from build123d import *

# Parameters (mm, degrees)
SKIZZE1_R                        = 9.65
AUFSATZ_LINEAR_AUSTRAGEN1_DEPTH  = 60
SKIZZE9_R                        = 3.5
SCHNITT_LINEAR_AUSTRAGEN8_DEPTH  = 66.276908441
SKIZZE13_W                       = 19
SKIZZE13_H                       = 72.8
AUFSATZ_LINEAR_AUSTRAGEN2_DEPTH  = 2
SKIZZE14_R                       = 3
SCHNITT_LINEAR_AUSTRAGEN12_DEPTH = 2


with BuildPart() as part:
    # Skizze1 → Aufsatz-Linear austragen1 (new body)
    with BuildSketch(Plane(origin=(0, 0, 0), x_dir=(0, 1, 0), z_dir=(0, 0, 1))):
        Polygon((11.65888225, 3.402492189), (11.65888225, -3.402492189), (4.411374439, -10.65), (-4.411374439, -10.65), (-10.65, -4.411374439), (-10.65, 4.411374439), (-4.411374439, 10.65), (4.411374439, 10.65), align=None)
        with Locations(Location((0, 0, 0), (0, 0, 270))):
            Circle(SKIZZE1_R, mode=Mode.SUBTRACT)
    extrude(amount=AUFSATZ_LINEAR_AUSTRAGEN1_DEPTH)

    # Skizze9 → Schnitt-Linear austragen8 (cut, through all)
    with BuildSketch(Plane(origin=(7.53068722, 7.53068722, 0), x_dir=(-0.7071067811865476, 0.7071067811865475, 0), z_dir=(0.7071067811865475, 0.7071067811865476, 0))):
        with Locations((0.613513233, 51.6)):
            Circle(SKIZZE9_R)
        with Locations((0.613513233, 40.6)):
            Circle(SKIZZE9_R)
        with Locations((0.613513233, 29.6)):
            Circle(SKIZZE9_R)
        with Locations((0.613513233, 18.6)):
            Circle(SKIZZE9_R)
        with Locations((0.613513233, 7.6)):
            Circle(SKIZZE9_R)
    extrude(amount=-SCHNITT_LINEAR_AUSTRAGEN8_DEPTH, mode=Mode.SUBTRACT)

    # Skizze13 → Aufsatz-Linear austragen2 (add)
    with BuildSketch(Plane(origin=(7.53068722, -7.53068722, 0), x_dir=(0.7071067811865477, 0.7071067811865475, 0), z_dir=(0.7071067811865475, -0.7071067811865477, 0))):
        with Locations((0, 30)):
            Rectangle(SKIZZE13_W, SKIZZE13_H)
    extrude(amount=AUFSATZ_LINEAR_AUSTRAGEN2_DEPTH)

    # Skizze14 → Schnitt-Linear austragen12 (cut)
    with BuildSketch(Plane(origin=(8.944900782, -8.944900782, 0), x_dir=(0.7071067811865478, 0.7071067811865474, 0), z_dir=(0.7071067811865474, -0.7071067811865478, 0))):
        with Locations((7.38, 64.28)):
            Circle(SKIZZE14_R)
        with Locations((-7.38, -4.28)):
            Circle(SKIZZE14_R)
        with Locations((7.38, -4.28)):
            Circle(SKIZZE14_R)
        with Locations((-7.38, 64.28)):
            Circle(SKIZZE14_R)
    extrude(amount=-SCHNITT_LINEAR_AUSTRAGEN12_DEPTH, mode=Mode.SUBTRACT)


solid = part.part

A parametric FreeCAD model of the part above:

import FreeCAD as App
import Part
import Sketcher
from FreeCAD import Vector
Q = App.Units.Quantity

doc = App.newDocument("Part")
params = doc.addObject("Spreadsheet::Sheet", "Params")
for row, (alias, value) in enumerate([
    ("sketch1_diameter", "19.3 mm"),
    ("pad1_length", "60 mm"),
    ("sketch2_diameter", "7 mm"),
    ("sketch3_width", "19 mm"),
    ("sketch3_height", "72.8 mm"),
    ("pad2_length", "2 mm"),
    ("sketch4_diameter", "6 mm"),
    ("pocket2_length", "2 mm"),
], start=1):
    params.set(f"A{row}", alias)
    params.set(f"B{row}", "=" + value)
    params.setAlias(f"B{row}", alias)

body = doc.addObject("PartDesign::Body", "Body")

# Sketch on XY plane
sketch1 = doc.addObject("Sketcher::SketchObject", "Sketch")
body.addObject(sketch1)
sketch1.AttachmentSupport = (doc.XY_Plane, [""])
sketch1.MapMode = "FlatFace"
sketch1.addGeometry([
    Part.LineSegment(Vector(3.402492, 11.658882, 0), Vector(-3.402492, 11.658882, 0)),  # 0
    Part.LineSegment(Vector(-3.402492, 11.658882, 0), Vector(-10.65, 4.411374, 0)),  # 1
    Part.LineSegment(Vector(-10.65, 4.411374, 0), Vector(-10.65, -4.411374, 0)),  # 2
    Part.LineSegment(Vector(-10.65, -4.411374, 0), Vector(-4.411374, -10.65, 0)),  # 3
    Part.LineSegment(Vector(-4.411374, -10.65, 0), Vector(4.411374, -10.65, 0)),  # 4
    Part.LineSegment(Vector(4.411374, -10.65, 0), Vector(10.65, -4.411374, 0)),  # 5
    Part.LineSegment(Vector(10.65, -4.411374, 0), Vector(10.65, 4.411374, 0)),  # 6
    Part.LineSegment(Vector(10.65, 4.411374, 0), Vector(3.402492, 11.658882, 0)),  # 7
    Part.Circle(Vector(0, 0, 0), Vector(0, 0, 1), 9.65),  # 8
], False)
sketch1.addConstraint([
    Sketcher.Constraint("Coincident", 0, 2, 1, 1),
    Sketcher.Constraint("Coincident", 1, 2, 2, 1),
    Sketcher.Constraint("Coincident", 2, 2, 3, 1),
    Sketcher.Constraint("Coincident", 3, 2, 4, 1),
    Sketcher.Constraint("Coincident", 4, 2, 5, 1),
    Sketcher.Constraint("Coincident", 5, 2, 6, 1),
    Sketcher.Constraint("Coincident", 6, 2, 7, 1),
    Sketcher.Constraint("Coincident", 7, 2, 0, 1),
    Sketcher.Constraint("Horizontal", 0),
    Sketcher.Constraint("Vertical", 2),
    Sketcher.Constraint("Horizontal", 4),
    Sketcher.Constraint("Vertical", 6),
    Sketcher.Constraint("Coincident", 8, 3, -1, 1),
    Sketcher.Constraint("Symmetric", 1, 2, 5, 2, -1, 1),
    Sketcher.Constraint("Perpendicular", 1, 3),
    Sketcher.Constraint("Perpendicular", 3, 5),
    Sketcher.Constraint("Perpendicular", 5, 7),
    Sketcher.Constraint("Horizontal", 2, 2, 5, 2),
    Sketcher.Constraint("Horizontal", 1, 2, 6, 2),
    Sketcher.Constraint("Equal", 4, 2),
    Sketcher.Constraint("Equal", 3, 5),
    Sketcher.Constraint("Diameter", 8, Q("19.3 mm")),
    Sketcher.Constraint("DistanceX", 2, 2, 5, 2, Q("21.3 mm")),
    Sketcher.Constraint("DistanceX", 4, 1, 4, 2, Q("8.822749 mm")),
    Sketcher.Constraint("DistanceX", 0, 2, 0, 1, Q("6.804984 mm")),
])
sketch1.setExpression("Constraints[21]", "Params.sketch1_diameter")
pad1 = doc.addObject("PartDesign::Pad", "Pad")
body.addObject(pad1)
pad1.Profile = sketch1
pad1.setExpression("Length", "Params.pad1_length")

# Sketch on an angled plane
sketch2 = doc.addObject("Sketcher::SketchObject", "Sketch001")
body.addObject(sketch2)
sketch2.Placement = App.Placement(Vector(7.530687, 7.530687, 0), App.Rotation(Vector(-0.707106781, 0.707106781, 0), Vector(0, 0, 0.999999999), Vector(0.707106781, 0.707106781, 0), "ZXY"))
sketch2.addGeometry([
    Part.Circle(Vector(0.613513, 51.6, 0), Vector(0, 0, 1), 3.5),  # 0
    Part.Circle(Vector(0.613513, 40.6, 0), Vector(0, 0, 1), 3.5),  # 1
    Part.Circle(Vector(0.613513, 29.6, 0), Vector(0, 0, 1), 3.5),  # 2
    Part.Circle(Vector(0.613513, 18.6, 0), Vector(0, 0, 1), 3.5),  # 3
    Part.Circle(Vector(0.613513, 7.6, 0), Vector(0, 0, 1), 3.5),  # 4
], False)
sketch2.addConstraint([
    Sketcher.Constraint("Equal", 0, 1),
    Sketcher.Constraint("Equal", 1, 2),
    Sketcher.Constraint("Equal", 2, 3),
    Sketcher.Constraint("Equal", 3, 4),
    Sketcher.Constraint("Vertical", 0, 3, 1, 3),
    Sketcher.Constraint("Vertical", 1, 3, 2, 3),
    Sketcher.Constraint("Vertical", 2, 3, 3, 3),
    Sketcher.Constraint("Vertical", 3, 3, 4, 3),
    Sketcher.Constraint("Diameter", 0, Q("7 mm")),
    Sketcher.Constraint("DistanceY", 1, 3, 0, 3, Q("11 mm")),
    Sketcher.Constraint("DistanceY", 2, 3, 1, 3, Q("11 mm")),
    Sketcher.Constraint("DistanceY", 3, 3, 2, 3, Q("11 mm")),
    Sketcher.Constraint("DistanceY", 4, 3, 3, 3, Q("11 mm")),
    Sketcher.Constraint("DistanceY", -1, 1, 0, 3, Q("51.6 mm")),
    Sketcher.Constraint("DistanceX", -1, 1, 0, 3, Q("0.613513 mm")),
])
sketch2.setExpression("Constraints[8]", "Params.sketch2_diameter")
pocket1 = doc.addObject("PartDesign::Pocket", "Pocket")
body.addObject(pocket1)
pocket1.Profile = sketch2
pocket1.Type = "ThroughAll"

# Sketch on an angled plane
sketch3 = doc.addObject("Sketcher::SketchObject", "Sketch002")
body.addObject(sketch3)
sketch3.Placement = App.Placement(Vector(7.530687, -7.530687, 0), App.Rotation(Vector(0.707106781, 0.707106781, 0), Vector(0, 0, 0.999999999), Vector(0.707106781, -0.707106781, 0), "ZXY"))
sketch3.addGeometry([
    Part.LineSegment(Vector(-9.5, 66.4, 0), Vector(-9.5, -6.4, 0)),
    Part.LineSegment(Vector(-9.5, -6.4, 0), Vector(9.5, -6.4, 0)),
    Part.LineSegment(Vector(9.5, -6.4, 0), Vector(9.5, 66.4, 0)),
    Part.LineSegment(Vector(9.5, 66.4, 0), Vector(-9.5, 66.4, 0)),
], False)
sketch3.addConstraint([
    Sketcher.Constraint("Coincident", 0, 2, 1, 1),
    Sketcher.Constraint("Coincident", 1, 2, 2, 1),
    Sketcher.Constraint("Coincident", 2, 2, 3, 1),
    Sketcher.Constraint("Coincident", 3, 2, 0, 1),
    Sketcher.Constraint("Vertical", 0),
    Sketcher.Constraint("Horizontal", 1),
    Sketcher.Constraint("Vertical", 2),
    Sketcher.Constraint("Horizontal", 3),
    Sketcher.Constraint("DistanceX", 1, 1, 1, 2, Q("19 mm")),
    Sketcher.Constraint("DistanceY", 0, 2, 0, 1, Q("72.8 mm")),
    Sketcher.Constraint("DistanceX", 0, 2, -1, 1, Q("9.5 mm")),
    Sketcher.Constraint("DistanceY", 0, 2, -1, 1, Q("6.4 mm")),
])
sketch3.setExpression("Constraints[8]", "Params.sketch3_width")
sketch3.setExpression("Constraints[9]", "Params.sketch3_height")
pad2 = doc.addObject("PartDesign::Pad", "Pad001")
body.addObject(pad2)
pad2.Profile = sketch3
pad2.setExpression("Length", "Params.pad2_length")

# Sketch on an angled plane
sketch4 = doc.addObject("Sketcher::SketchObject", "Sketch003")
body.addObject(sketch4)
sketch4.Placement = App.Placement(Vector(8.944901, -8.944901, 0), App.Rotation(Vector(0.707106781, 0.707106781, 0), Vector(0, 0, 0.999999999), Vector(0.707106781, -0.707106781, 0), "ZXY"))
sketch4.addGeometry([
    Part.Circle(Vector(7.38, 64.28, 0), Vector(0, 0, 1), 3),
    Part.Circle(Vector(-7.38, -4.28, 0), Vector(0, 0, 1), 3),
    Part.Circle(Vector(7.38, -4.28, 0), Vector(0, 0, 1), 3),
    Part.Circle(Vector(-7.38, 64.28, 0), Vector(0, 0, 1), 3),
], False)
sketch4.addConstraint([
    Sketcher.Constraint("Equal", 0, 1),
    Sketcher.Constraint("Equal", 1, 2),
    Sketcher.Constraint("Equal", 2, 3),
    Sketcher.Constraint("Symmetric", 1, 3, 2, 3, -2),
    Sketcher.Constraint("Symmetric", 0, 3, 3, 3, -2),
    Sketcher.Constraint("Vertical", 0, 3, 2, 3),
    Sketcher.Constraint("Diameter", 0, Q("6 mm")),
    Sketcher.Constraint("DistanceX", -1, 1, 0, 3, Q("7.38 mm")),
    Sketcher.Constraint("DistanceY", -1, 1, 0, 3, Q("64.28 mm")),
    Sketcher.Constraint("DistanceY", 1, 3, -1, 1, Q("4.28 mm")),
])
sketch4.setExpression("Constraints[6]", "Params.sketch4_diameter")
pocket2 = doc.addObject("PartDesign::Pocket", "Pocket001")
body.addObject(pocket2)
pocket2.Profile = sketch4
pocket2.setExpression("Length", "Params.pocket2_length")

doc.recompute()
